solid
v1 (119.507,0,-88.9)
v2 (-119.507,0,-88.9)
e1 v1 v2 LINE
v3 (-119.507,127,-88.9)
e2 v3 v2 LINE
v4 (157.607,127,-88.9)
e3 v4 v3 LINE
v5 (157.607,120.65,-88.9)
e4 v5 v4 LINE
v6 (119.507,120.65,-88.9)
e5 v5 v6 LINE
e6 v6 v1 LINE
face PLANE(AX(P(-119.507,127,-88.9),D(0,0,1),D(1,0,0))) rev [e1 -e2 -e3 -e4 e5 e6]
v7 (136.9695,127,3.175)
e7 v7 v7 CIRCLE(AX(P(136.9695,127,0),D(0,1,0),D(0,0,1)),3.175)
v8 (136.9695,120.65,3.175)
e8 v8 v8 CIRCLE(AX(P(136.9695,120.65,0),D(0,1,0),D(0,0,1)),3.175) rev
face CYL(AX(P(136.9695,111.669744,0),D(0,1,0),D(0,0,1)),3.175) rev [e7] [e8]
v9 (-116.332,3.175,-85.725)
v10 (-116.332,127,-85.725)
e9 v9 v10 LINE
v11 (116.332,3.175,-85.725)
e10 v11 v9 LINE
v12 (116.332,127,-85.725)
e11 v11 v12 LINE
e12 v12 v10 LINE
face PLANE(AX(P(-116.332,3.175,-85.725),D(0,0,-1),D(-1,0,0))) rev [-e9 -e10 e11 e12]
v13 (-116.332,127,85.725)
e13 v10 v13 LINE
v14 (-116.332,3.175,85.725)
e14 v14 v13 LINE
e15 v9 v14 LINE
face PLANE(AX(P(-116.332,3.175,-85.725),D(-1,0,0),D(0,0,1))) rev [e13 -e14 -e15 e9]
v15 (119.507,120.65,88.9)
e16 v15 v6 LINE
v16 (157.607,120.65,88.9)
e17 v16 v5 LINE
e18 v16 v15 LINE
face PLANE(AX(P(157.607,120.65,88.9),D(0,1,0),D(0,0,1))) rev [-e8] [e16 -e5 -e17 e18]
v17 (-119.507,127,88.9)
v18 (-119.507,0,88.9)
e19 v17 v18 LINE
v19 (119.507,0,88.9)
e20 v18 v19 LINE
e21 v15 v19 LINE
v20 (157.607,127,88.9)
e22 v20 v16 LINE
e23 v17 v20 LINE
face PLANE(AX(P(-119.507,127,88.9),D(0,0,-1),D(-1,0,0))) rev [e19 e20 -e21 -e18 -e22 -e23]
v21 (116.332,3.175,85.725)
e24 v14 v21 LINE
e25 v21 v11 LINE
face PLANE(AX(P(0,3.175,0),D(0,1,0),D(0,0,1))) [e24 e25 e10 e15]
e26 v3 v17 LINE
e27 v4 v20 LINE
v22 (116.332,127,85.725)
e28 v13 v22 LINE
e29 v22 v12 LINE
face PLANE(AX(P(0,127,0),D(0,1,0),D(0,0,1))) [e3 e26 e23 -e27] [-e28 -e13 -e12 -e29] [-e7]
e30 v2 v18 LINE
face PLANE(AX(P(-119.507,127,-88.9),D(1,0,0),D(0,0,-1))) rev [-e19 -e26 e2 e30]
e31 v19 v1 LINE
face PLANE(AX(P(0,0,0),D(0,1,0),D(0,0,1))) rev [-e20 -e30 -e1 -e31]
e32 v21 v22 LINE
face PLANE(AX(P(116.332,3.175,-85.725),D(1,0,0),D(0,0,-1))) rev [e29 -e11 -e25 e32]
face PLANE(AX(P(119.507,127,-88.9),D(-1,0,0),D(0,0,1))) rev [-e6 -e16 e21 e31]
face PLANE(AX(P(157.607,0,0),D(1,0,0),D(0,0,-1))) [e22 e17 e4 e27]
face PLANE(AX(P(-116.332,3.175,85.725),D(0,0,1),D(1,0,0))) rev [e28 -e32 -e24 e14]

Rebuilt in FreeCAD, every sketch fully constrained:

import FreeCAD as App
import Part
import Sketcher
from FreeCAD import Vector
Q = App.Units.Quantity

doc = App.newDocument("Part")
body = doc.addObject("PartDesign::Body", "Body")

sketch1 = body.newObject("Sketcher::SketchObject", "Sketch")
sketch1.AttachmentSupport = (doc.getObject("XZ_Plane"), [""])
sketch1.MapMode = "FlatFace"
sketch1.addGeometry(Part.LineSegment(Vector(-120, -89, 0), Vector(-120, 89, 0)), False)
sketch1.addGeometry(Part.LineSegment(Vector(-120, 89, 0), Vector(120, 89, 0)), False)
sketch1.addGeometry(Part.LineSegment(Vector(120, 89, 0), Vector(120, -89, 0)), False)
sketch1.addGeometry(Part.LineSegment(Vector(120, -89, 0), Vector(-120, -89, 0)), False)
sketch1.addConstraint(Sketcher.Constraint("Coincident", 0, 2, 1, 1))
sketch1.addConstraint(Sketcher.Constraint("Coincident", 1, 2, 2, 1))
sketch1.addConstraint(Sketcher.Constraint("Coincident", 2, 2, 3, 1))
sketch1.addConstraint(Sketcher.Constraint("Coincident", 3, 2, 0, 1))
sketch1.addConstraint(Sketcher.Constraint("Vertical", 0))
sketch1.addConstraint(Sketcher.Constraint("Horizontal", 1))
sketch1.addConstraint(Sketcher.Constraint("Vertical", 2))
sketch1.addConstraint(Sketcher.Constraint("Horizontal", 3))
sketch1.addConstraint(Sketcher.Constraint("Symmetric", 0, 2, 2, 2, -1, 1))
sketch1.addConstraint(Sketcher.Constraint("DistanceY", 0, 1, 0, 2, Q("7 in")))
sketch1.addConstraint(Sketcher.Constraint("DistanceX", 1, 1, 1, 2, Q("9.41 in")))
pad1 = body.newObject("PartDesign::Pad", "Pad")
pad1.Profile = sketch1
pad1.Length = Q("5 in")
pad1.Reversed = True

sketch2 = body.newObject("Sketcher::SketchObject", "Sketch001")
sketch2.AttachmentSupport = (doc.getObject("XZ_Plane"), [""])
sketch2.MapMode = "FlatFace"
sketch2.AttachmentOffset = App.Placement(Vector(0, 0, -5 * 25.4), App.Rotation())
sketch2.addGeometry(Part.LineSegment(Vector(-116, -86, 0), Vector(-116, 86, 0)), False)
sketch2.addGeometry(Part.LineSegment(Vector(-116, 86, 0), Vector(116, 86, 0)), False)
sketch2.addGeometry(Part.LineSegment(Vector(116, 86, 0), Vector(116, -86, 0)), False)
sketch2.addGeometry(Part.LineSegment(Vector(116, -86, 0), Vector(-116, -86, 0)), False)
sketch2.addConstraint(Sketcher.Constraint("Coincident", 0, 2, 1, 1))
sketch2.addConstraint(Sketcher.Constraint("Coincident", 1, 2, 2, 1))
sketch2.addConstraint(Sketcher.Constraint("Coincident", 2, 2, 3, 1))
sketch2.addConstraint(Sketcher.Constraint("Coincident", 3, 2, 0, 1))
sketch2.addConstraint(Sketcher.Constraint("Vertical", 0))
sketch2.addConstraint(Sketcher.Constraint("Horizontal", 1))
sketch2.addConstraint(Sketcher.Constraint("Vertical", 2))
sketch2.addConstraint(Sketcher.Constraint("Horizontal", 3))
sketch2.addConstraint(Sketcher.Constraint("Symmetric", 0, 2, 2, 2, -1, 1))
sketch2.addConstraint(Sketcher.Constraint("DistanceX", 1, 1, 1, 2, Q("9.16 in")))
sketch2.addConstraint(Sketcher.Constraint("DistanceY", 0, 1, 0, 2, Q("6.75 in")))
pocket1 = body.newObject("PartDesign::Pocket", "Pocket")
pocket1.Profile = sketch2
pocket1.Length = Q("4.875 in")
pocket1.Reversed = True

sketch3 = body.newObject("Sketcher::SketchObject", "Sketch002")
sketch3.AttachmentSupport = (doc.getObject("YZ_Plane"), [""])
sketch3.MapMode = "FlatFace"
sketch3.AttachmentOffset = App.Placement(Vector(0, 0, 4.705 * 25.4), App.Rotation())
sketch3.addGeometry(Part.LineSegment(Vector(127, 89, 0), Vector(121, 89, 0)), False)
sketch3.addGeometry(Part.LineSegment(Vector(121, 89, 0), Vector(121, -89, 0)), False)
sketch3.addGeometry(Part.LineSegment(Vector(121, -89, 0), Vector(127, -89, 0)), False)
sketch3.addGeometry(Part.LineSegment(Vector(127, -89, 0), Vector(127, 89, 0)), False)
sketch3.addConstraint(Sketcher.Constraint("Coincident", 0, 2, 1, 1))
sketch3.addConstraint(Sketcher.Constraint("Coincident", 1, 2, 2, 1))
sketch3.addConstraint(Sketcher.Constraint("Coincident", 2, 2, 3, 1))
sketch3.addConstraint(Sketcher.Constraint("Coincident", 3, 2, 0, 1))
sketch3.addConstraint(Sketcher.Constraint("Horizontal", 0))
sketch3.addConstraint(Sketcher.Constraint("Vertical", 1))
sketch3.addConstraint(Sketcher.Constraint("Horizontal", 2))
sketch3.addConstraint(Sketcher.Constraint("Vertical", 3))
sketch3.addConstraint(Sketcher.Constraint("DistanceY", 1, 2, 1, 1, Q("7 in")))
sketch3.addConstraint(Sketcher.Constraint("DistanceX", -1, 1, 2, 2, Q("5 in")))
sketch3.addConstraint(Sketcher.Constraint("DistanceX", 0, 2, 0, 1, Q("0.25 in")))
sketch3.addConstraint(Sketcher.Constraint("DistanceY", -1, 1, 0, 2, Q("3.5 in")))
pad2 = body.newObject("PartDesign::Pad", "Pad001")
pad2.Profile = sketch3
pad2.Length = Q("1.5 in")

sketch4 = body.newObject("Sketcher::SketchObject", "Sketch003")
sketch4.AttachmentSupport = (doc.getObject("XZ_Plane"), [""])
sketch4.MapMode = "FlatFace"
sketch4.AttachmentOffset = App.Placement(Vector(0, 0, -5 * 25.4), App.Rotation())
sketch4.addGeometry(Part.Circle(Vector(137, 0, 0), Vector(0, 0, 1), 3.2), False)
sketch4.addConstraint(Sketcher.Constraint("PointOnObject", 0, 3, -1))
sketch4.addConstraint(Sketcher.Constraint("Diameter", 0, Q("0.25 in")))
sketch4.addConstraint(Sketcher.Constraint("DistanceX", -1, 1, 0, 3, Q("5.3925 in")))
pocket2 = body.newObject("PartDesign::Pocket", "Pocket001")
pocket2.Profile = sketch4
pocket2.Length = Q("0.25 in")
pocket2.Reversed = True

doc.recompute()
